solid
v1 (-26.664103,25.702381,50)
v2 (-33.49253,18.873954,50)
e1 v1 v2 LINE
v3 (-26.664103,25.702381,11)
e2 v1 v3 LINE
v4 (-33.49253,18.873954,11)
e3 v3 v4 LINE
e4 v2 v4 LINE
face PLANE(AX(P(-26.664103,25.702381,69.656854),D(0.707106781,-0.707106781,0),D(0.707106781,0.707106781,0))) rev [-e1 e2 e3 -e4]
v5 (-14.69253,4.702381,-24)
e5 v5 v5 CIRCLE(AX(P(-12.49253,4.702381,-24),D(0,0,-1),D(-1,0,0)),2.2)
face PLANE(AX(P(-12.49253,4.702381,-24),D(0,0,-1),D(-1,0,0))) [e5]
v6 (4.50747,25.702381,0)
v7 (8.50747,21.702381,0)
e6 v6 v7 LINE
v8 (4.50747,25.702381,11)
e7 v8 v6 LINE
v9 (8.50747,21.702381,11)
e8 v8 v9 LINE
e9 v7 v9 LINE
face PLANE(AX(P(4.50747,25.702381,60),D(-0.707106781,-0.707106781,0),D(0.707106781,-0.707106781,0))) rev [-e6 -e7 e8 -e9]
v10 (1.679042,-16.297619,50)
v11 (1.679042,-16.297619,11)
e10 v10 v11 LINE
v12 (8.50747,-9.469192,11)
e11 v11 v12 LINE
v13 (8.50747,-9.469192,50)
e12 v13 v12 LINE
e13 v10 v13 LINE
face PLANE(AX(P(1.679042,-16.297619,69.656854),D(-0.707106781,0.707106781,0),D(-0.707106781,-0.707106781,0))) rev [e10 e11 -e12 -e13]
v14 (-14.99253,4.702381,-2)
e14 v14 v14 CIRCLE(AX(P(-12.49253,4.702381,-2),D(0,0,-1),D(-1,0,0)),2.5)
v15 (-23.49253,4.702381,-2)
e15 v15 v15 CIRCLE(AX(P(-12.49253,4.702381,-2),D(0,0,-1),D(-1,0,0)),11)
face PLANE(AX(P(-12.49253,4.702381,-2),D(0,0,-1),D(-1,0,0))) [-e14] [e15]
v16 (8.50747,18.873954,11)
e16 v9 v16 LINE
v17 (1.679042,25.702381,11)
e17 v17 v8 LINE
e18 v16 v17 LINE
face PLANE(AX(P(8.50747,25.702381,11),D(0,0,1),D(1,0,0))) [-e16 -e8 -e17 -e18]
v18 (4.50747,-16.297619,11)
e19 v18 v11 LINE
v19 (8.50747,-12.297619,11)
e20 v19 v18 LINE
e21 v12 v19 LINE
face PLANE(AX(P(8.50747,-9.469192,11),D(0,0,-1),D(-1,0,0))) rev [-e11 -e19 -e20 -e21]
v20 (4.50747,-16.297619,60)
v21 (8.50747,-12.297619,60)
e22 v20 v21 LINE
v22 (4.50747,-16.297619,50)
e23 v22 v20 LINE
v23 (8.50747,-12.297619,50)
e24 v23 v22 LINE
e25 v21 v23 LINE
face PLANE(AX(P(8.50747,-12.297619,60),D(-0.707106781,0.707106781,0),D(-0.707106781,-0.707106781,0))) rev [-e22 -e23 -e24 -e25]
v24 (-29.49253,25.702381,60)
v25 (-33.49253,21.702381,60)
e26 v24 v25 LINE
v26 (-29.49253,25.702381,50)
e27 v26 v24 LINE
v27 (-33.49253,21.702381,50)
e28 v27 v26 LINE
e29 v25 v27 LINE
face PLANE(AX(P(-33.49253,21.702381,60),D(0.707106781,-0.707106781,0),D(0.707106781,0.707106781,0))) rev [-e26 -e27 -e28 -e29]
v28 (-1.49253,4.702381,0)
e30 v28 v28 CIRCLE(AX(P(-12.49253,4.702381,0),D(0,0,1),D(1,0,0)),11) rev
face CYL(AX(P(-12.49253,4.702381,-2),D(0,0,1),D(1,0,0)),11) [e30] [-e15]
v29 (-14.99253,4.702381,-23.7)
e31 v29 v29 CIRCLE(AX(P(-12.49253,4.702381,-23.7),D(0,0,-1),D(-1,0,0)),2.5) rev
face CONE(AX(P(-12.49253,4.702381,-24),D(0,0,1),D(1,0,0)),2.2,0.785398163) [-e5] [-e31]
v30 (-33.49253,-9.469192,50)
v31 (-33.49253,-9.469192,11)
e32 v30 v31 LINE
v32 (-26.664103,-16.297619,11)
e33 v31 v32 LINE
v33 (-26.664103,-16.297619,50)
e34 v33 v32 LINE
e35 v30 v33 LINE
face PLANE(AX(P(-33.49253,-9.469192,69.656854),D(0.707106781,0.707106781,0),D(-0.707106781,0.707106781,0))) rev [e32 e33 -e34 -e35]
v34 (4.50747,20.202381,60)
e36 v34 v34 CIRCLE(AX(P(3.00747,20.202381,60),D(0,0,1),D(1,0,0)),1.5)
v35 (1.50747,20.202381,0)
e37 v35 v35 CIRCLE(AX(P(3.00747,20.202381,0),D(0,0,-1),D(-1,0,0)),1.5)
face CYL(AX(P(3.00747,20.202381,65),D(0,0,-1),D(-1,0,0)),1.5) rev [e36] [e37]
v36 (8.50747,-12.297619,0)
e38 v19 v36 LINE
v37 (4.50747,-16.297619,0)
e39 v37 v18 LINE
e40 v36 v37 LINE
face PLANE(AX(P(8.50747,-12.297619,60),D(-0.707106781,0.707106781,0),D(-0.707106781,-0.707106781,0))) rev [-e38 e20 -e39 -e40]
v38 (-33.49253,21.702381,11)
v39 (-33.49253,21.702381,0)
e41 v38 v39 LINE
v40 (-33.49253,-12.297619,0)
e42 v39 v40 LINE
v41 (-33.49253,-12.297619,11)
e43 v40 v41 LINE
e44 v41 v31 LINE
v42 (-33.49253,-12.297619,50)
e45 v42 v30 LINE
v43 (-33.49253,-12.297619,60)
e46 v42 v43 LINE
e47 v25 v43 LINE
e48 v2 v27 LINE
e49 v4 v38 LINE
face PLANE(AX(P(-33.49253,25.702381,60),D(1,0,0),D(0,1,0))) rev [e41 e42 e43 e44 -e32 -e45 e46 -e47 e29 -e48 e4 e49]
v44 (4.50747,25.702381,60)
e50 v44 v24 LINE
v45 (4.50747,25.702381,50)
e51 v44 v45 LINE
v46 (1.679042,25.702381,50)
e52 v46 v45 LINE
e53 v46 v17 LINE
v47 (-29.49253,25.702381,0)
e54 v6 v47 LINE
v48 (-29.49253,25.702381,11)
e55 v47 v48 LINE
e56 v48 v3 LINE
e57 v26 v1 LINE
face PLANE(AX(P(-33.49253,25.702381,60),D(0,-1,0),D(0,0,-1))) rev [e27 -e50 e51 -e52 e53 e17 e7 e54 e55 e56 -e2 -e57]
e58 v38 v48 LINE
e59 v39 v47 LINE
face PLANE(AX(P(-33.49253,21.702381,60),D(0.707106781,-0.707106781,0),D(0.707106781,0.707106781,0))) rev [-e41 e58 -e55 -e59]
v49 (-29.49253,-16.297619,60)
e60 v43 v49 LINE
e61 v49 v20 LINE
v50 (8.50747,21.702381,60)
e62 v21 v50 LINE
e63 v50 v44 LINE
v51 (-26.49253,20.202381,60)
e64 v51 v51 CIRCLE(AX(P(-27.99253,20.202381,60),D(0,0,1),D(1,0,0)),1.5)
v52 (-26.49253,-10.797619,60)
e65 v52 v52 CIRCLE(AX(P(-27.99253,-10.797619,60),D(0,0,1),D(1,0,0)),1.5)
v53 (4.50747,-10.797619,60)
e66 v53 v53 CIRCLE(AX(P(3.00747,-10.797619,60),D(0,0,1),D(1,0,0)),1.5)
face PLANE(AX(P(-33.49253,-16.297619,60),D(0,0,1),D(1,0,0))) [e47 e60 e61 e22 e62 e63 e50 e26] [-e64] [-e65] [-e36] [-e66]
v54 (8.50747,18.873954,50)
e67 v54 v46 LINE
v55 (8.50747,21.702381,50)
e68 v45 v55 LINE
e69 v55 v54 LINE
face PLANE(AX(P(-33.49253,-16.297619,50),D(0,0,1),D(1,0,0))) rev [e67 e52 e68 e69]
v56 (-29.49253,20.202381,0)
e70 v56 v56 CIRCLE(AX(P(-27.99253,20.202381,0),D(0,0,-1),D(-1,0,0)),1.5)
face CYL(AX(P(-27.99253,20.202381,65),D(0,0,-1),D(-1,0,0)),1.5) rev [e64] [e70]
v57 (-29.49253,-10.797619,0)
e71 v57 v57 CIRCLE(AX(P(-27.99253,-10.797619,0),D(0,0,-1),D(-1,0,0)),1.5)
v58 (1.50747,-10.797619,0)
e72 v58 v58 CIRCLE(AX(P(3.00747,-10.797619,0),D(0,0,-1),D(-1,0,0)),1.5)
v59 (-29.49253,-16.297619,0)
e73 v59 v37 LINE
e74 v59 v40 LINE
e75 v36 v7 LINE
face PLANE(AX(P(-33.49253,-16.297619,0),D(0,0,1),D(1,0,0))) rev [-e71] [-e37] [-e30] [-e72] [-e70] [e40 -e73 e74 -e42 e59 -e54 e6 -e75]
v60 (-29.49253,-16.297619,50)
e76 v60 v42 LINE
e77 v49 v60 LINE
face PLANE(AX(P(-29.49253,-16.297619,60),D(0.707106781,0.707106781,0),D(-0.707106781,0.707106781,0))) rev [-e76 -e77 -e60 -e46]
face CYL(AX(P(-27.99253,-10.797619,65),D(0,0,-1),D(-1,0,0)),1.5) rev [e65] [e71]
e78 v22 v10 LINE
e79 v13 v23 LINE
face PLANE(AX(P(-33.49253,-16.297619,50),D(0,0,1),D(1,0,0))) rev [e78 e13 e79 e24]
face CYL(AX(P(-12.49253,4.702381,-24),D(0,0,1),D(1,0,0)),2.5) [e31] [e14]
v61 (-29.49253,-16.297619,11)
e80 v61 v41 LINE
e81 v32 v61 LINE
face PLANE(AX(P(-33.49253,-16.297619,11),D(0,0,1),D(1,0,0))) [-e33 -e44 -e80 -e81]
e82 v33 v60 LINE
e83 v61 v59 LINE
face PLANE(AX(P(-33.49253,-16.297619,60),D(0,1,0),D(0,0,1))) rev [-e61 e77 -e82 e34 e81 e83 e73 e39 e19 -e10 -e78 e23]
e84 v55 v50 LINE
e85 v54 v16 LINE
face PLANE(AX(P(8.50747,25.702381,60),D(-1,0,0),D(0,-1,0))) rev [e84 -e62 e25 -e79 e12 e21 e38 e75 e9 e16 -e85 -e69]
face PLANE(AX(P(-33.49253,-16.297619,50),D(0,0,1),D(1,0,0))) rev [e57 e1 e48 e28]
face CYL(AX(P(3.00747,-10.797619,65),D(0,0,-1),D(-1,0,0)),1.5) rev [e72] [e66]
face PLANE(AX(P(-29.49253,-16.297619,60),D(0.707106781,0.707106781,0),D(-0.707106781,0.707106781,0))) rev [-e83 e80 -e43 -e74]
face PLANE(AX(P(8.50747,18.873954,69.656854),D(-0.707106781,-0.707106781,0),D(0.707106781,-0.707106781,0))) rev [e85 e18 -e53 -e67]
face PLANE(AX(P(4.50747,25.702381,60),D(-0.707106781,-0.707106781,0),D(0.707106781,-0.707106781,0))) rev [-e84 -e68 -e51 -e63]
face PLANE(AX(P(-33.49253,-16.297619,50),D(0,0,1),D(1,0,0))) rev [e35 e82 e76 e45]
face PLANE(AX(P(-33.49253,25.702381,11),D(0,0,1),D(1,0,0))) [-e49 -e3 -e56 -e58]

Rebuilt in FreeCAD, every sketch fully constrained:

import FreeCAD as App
import Part
import Sketcher

V = App.Vector


def edges_at(feature, points):
    """Names of the edges that pass closest to the given points."""
    edges = feature.Shape.Edges
    near = lambda p: min(range(len(edges)), key=lambda i: edges[i].distToShape(Part.Vertex(*p))[0])
    return sorted({f"Edge{near(p) + 1}" for p in points})


def add_polygon(sketch, points):
    """Adds a closed chain of lines whose ends are joined by coincident constraints."""
    first, n = sketch.GeometryCount, len(points)
    for a, b in zip(points, points[1:] + points[:1]):
        sketch.addGeometry(Part.LineSegment(App.Vector(*a, 0), App.Vector(*b, 0)), False)
    for i in range(n):
        sketch.addConstraint(Sketcher.Constraint("Coincident", first + i, 2, first + (i + 1) % n, 1))

doc = App.newDocument("Part")
body = doc.addObject("PartDesign::Body", "Body")

sketch1 = body.newObject("Sketcher::SketchObject", "Sketch")
sketch1.AttachmentSupport = (doc.getObject("XY_Plane"), [""])
sketch1.MapMode = "FlatFace"
add_polygon(sketch1, [(-33, 26), (-33, -16), (9, -16), (9, 26)])
sketch1.addConstraint(Sketcher.Constraint("Vertical", 0))
sketch1.addConstraint(Sketcher.Constraint("Horizontal", 1))
sketch1.addConstraint(Sketcher.Constraint("Vertical", 2))
sketch1.addConstraint(Sketcher.Constraint("Horizontal", 3))
sketch1.addConstraint(Sketcher.Constraint("Equal", 3, 0))
sketch1.addConstraint(Sketcher.Constraint("DistanceX", 1, 1, 1, 2, 42.0))
sketch1.addConstraint(Sketcher.Constraint("DistanceX", 0, 2, -1, 1, 33.49253))
sketch1.addConstraint(Sketcher.Constraint("DistanceY", 0, 2, -1, 1, 16.297619))
pad1 = body.newObject("PartDesign::Pad", "Pad")
pad1.Profile = sketch1
pad1.Length = 60

sketch2 = body.newObject("Sketcher::SketchObject", "Sketch001")
sketch2.AttachmentSupport = (doc.getObject("XY_Plane"), [""])
sketch2.MapMode = "FlatFace"
sketch2.addGeometry(Part.Circle(V(3, 20.2, 0), V(0, 0, 1), 1.5), False)
sketch2.addGeometry(Part.Circle(V(-28, 20.2, 0), V(0, 0, 1), 1.5), False)
sketch2.addGeometry(Part.Circle(V(-28, -10.8, 0), V(0, 0, 1), 1.5), False)
sketch2.addGeometry(Part.Circle(V(3, -10.8, 0), V(0, 0, 1), 1.5), False)
sketch2.addConstraint(Sketcher.Constraint("Equal", 0, 1))
sketch2.addConstraint(Sketcher.Constraint("Equal", 1, 2))
sketch2.addConstraint(Sketcher.Constraint("Equal", 2, 3))
sketch2.addConstraint(Sketcher.Constraint("Horizontal", 0, 3, 1, 3))
sketch2.addConstraint(Sketcher.Constraint("Horizontal", 2, 3, 3, 3))
sketch2.addConstraint(Sketcher.Constraint("Vertical", 1, 3, 2, 3))
sketch2.addConstraint(Sketcher.Constraint("Vertical", 0, 3, 3, 3))
sketch2.addConstraint(Sketcher.Constraint("Diameter", 0, 3.0))
sketch2.addConstraint(Sketcher.Constraint("DistanceX", 1, 3, 0, 3, 31.0))
sketch2.addConstraint(Sketcher.Constraint("DistanceY", 2, 3, 1, 3, 31.0))
sketch2.addConstraint(Sketcher.Constraint("DistanceX", -1, 1, 0, 3, 3.00747))
sketch2.addConstraint(Sketcher.Constraint("DistanceY", -1, 1, 0, 3, 20.202381))
pocket1 = body.newObject("PartDesign::Pocket", "Pocket")
pocket1.Profile = sketch2
pocket1.Length = 65
pocket1.Reversed = True

sketch3 = body.newObject("Sketcher::SketchObject", "Sketch002")
sketch3.AttachmentSupport = (doc.getObject("XY_Plane"), [""])
sketch3.MapMode = "FlatFace"
sketch3.addGeometry(Part.Circle(V(-12, 5, 0), V(0, 0, 1), 11), False)
sketch3.addConstraint(Sketcher.Constraint("Diameter", 0, 22.0))
sketch3.addConstraint(Sketcher.Constraint("DistanceX", 0, 3, -1, 1, 12.49253))
sketch3.addConstraint(Sketcher.Constraint("DistanceY", -1, 1, 0, 3, 4.702381))
pad2 = body.newObject("PartDesign::Pad", "Pad001")
pad2.Profile = sketch3
pad2.Length = 2
pad2.Reversed = True

sketch4 = body.newObject("Sketcher::SketchObject", "Sketch003")
sketch4.AttachmentSupport = (doc.getObject("XY_Plane"), [""])
sketch4.MapMode = "FlatFace"
sketch4.AttachmentOffset = App.Placement(V(0, 0, -2), App.Rotation())
sketch4.addGeometry(Part.Circle(V(-12.5, 4.7, 0), V(0, 0, 1), 2.5), False)
sketch4.addConstraint(Sketcher.Constraint("Diameter", 0, 5.0))
sketch4.addConstraint(Sketcher.Constraint("DistanceX", 0, 3, -1, 1, 12.49253))
sketch4.addConstraint(Sketcher.Constraint("DistanceY", -1, 1, 0, 3, 4.702381))
pad3 = body.newObject("PartDesign::Pad", "Pad002")
pad3.Profile = sketch4
pad3.Length = 22
pad3.Reversed = True
doc.recompute()

chamfer = body.newObject("PartDesign::Chamfer", "Chamfer")
chamfer.Base = (pad3, edges_at(pad3, [(-9.993, 4.702, -24)]))
chamfer.Size = 0.3
doc.recompute()

chamfer2 = body.newObject("PartDesign::Chamfer", "Chamfer001")
chamfer2.Base = (chamfer, edges_at(chamfer, [
    (-33.493, 25.702, 30),
    (8.507, 25.702, 30),
    (8.507, -16.298, 30),
    (-33.493, -16.298, 30),
]))
chamfer2.Size = 4

sketch5 = body.newObject("Sketcher::SketchObject", "Sketch004")
sketch5.AttachmentSupport = (doc.getObject("XY_Plane"), [""])
sketch5.MapMode = "FlatFace"
sketch5.AttachmentOffset = App.Placement(V(0, 0, 11), App.Rotation())
add_polygon(sketch5, [(8.5, 18.9), (1.7, 25.7), (4.5, 25.7), (8.5, 21.7)])
add_polygon(sketch5, [(8.5, -9.5), (8.5, -12.3), (4.5, -16.3), (1.7, -16.3)])
add_polygon(sketch5, [(-26.7, 25.7), (-33.5, 18.9), (-33.5, 21.7), (-29.5, 25.7)])
add_polygon(sketch5, [(-33.5, -9.5), (-26.7, -16.3), (-29.5, -16.3), (-33.5, -12.3)])
sketch5.addConstraint(Sketcher.Constraint("Horizontal", 1))
sketch5.addConstraint(Sketcher.Constraint("Vertical", 3))
sketch5.addConstraint(Sketcher.Constraint("Vertical", 4))
sketch5.addConstraint(Sketcher.Constraint("Horizontal", 6))
sketch5.addConstraint(Sketcher.Constraint("Vertical", 9))
sketch5.addConstraint(Sketcher.Constraint("Horizontal", 11))
sketch5.addConstraint(Sketcher.Constraint("Horizontal", 13))
sketch5.addConstraint(Sketcher.Constraint("Vertical", 15))
sketch5.addConstraint(Sketcher.Constraint("Parallel", 0, 2))
sketch5.addConstraint(Sketcher.Constraint("Perpendicular", 2, 5))
sketch5.addConstraint(Sketcher.Constraint("Parallel", 5, 7))
sketch5.addConstraint(Sketcher.Constraint("Parallel", 7, 8))
sketch5.addConstraint(Sketcher.Constraint("Parallel", 8, 10))
sketch5.addConstraint(Sketcher.Constraint("Perpendicular", 10, 12))
sketch5.addConstraint(Sketcher.Constraint("Parallel", 12, 14))
sketch5.addConstraint(Sketcher.Constraint("Horizontal", 3, 2, 8, 2))
sketch5.addConstraint(Sketcher.Constraint("Horizontal", 2, 2, 9, 2))
sketch5.addConstraint(Sketcher.Constraint("Horizontal", 1, 2, 10, 2))
sketch5.addConstraint(Sketcher.Constraint("Horizontal", 6, 2, 12, 2))
sketch5.addConstraint(Sketcher.Constraint("Horizontal", 4, 2, 14, 2))
sketch5.addConstraint(Sketcher.Constraint("Horizontal", 7, 2, 15, 2))
sketch5.addConstraint(Sketcher.Constraint("Vertical", 3, 2, 4, 2))
sketch5.addConstraint(Sketcher.Constraint("Vertical", 1, 2, 5, 2))
sketch5.addConstraint(Sketcher.Constraint("Vertical", 0, 2, 6, 2))
sketch5.addConstraint(Sketcher.Constraint("Vertical", 11, 2, 12, 2))
sketch5.addConstraint(Sketcher.Constraint("Vertical", 10, 2, 13, 2))
sketch5.addConstraint(Sketcher.Constraint("DistanceX", 1, 2, 2, 2, 4.0))
sketch5.addConstraint(Sketcher.Constraint("DistanceY", 4, 2, 2, 2, 34.0))
sketch5.addConstraint(Sketcher.Constraint("DistanceX", 8, 2, 1, 2, 38.0))
sketch5.addConstraint(Sketcher.Constraint("DistanceX", 1, 1, 1, 2, 2.828427))
sketch5.addConstraint(Sketcher.Constraint("DistanceY", -1, 1, 0, 2, 25.702381))
sketch5.addConstraint(Sketcher.Constraint("DistanceX", -1, 1, 1, 2, 4.50747))
pocket2 = body.newObject("PartDesign::Pocket", "Pocket001")
pocket2.Profile = sketch5
pocket2.Length = 39
pocket2.Reversed = True

doc.recompute()
